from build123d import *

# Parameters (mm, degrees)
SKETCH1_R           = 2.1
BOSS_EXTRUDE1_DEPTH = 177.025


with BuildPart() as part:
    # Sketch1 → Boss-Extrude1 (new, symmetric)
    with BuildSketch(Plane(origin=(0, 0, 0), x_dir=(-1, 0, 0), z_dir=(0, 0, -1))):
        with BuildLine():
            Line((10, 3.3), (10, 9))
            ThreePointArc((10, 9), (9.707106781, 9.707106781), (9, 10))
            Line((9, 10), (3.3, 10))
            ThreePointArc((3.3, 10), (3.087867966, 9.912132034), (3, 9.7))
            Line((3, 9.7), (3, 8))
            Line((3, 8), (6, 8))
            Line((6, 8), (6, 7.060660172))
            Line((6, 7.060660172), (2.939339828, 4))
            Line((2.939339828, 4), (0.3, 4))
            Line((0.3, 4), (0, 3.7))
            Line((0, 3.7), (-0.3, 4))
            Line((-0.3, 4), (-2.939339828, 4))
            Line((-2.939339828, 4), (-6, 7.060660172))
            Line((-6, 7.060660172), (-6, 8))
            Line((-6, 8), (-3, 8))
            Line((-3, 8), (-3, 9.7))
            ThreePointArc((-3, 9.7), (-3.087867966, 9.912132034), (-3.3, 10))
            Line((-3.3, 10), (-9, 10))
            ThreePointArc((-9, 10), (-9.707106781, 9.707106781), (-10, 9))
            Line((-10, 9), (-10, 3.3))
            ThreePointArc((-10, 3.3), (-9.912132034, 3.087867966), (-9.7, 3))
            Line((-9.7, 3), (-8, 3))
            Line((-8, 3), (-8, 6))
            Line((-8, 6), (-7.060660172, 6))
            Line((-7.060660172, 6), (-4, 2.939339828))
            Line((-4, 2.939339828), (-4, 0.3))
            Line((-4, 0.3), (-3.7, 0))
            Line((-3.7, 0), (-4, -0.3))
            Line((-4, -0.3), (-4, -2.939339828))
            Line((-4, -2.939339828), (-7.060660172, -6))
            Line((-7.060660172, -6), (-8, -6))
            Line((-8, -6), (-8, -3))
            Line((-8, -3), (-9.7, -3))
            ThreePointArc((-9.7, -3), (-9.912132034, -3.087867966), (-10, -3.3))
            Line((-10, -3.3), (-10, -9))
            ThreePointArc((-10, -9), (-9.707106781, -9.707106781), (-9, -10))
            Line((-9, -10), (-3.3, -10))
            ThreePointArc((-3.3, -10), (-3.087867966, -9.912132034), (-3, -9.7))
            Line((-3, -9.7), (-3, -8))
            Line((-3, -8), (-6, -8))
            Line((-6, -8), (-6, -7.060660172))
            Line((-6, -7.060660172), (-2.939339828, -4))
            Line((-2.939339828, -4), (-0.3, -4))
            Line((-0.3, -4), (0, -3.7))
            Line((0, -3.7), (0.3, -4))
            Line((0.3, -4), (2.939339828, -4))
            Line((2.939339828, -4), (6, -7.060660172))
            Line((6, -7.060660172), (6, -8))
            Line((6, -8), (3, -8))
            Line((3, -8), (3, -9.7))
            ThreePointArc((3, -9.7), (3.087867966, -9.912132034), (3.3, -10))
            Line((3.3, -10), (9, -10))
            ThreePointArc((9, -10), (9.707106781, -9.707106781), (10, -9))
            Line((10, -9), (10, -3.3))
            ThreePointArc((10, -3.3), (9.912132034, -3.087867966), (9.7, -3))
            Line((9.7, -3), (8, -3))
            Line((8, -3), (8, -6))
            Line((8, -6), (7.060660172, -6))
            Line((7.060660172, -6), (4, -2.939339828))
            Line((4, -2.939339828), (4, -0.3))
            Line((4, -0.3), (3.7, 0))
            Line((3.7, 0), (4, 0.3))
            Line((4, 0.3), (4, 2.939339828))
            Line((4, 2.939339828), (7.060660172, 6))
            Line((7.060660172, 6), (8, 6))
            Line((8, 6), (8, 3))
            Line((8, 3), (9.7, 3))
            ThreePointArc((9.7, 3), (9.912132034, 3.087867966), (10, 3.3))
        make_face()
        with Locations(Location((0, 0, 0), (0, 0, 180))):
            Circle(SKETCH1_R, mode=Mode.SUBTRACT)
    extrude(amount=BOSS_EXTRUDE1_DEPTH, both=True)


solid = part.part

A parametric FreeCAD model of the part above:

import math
import FreeCAD as App
import Part
import Sketcher
Q = App.Units.Quantity

doc = App.newDocument("Part")
params = doc.addObject("Spreadsheet::Sheet", "Params")
for row, (alias, value) in enumerate([
    ("sketch1_radius", "1 mm"),
    ("sketch1_diameter", "4.2 mm"),
    ("sketch1_radius2", "0.3 mm"),
    ("sketch1_width", "3 mm"),
    ("sketch1_width2", "5.7 mm"),
    ("pad1_length", "354.05 mm"),
], start=1):
    params.set(f"A{row}", alias)
    params.set(f"B{row}", "=" + value)
    params.setAlias(f"B{row}", alias)

body = doc.addObject("PartDesign::Body", "Body")

# Sketch on XY plane
sketch1 = body.newObject("Sketcher::SketchObject", "Sketch")
sketch1.AttachmentSupport = (doc.getObject("XY_Plane"), [""])
sketch1.MapMode = "FlatFace"
sketch1.addGeometry([
    Part.LineSegment(App.Vector(-10, 3.3, 0), App.Vector(-10, 9, 0)),  # 0
    Part.ArcOfCircle(Part.Circle(App.Vector(-9, 9, 0), App.Vector(0, 0, 1), 1), math.radians(90), math.radians(180)),  # 1
    Part.LineSegment(App.Vector(-9, 10, 0), App.Vector(-3.3, 10, 0)),  # 2
    Part.ArcOfCircle(Part.Circle(App.Vector(-3.3, 9.7, 0), App.Vector(0, 0, 1), 0.3), math.radians(0), math.radians(90)),  # 3
    Part.LineSegment(App.Vector(-3, 9.7, 0), App.Vector(-3, 8, 0)),  # 4
    Part.LineSegment(App.Vector(-3, 8, 0), App.Vector(-6, 8, 0)),  # 5
    Part.LineSegment(App.Vector(-6, 8, 0), App.Vector(-6, 7.06, 0)),  # 6
    Part.LineSegment(App.Vector(-6, 7.06, 0), App.Vector(-2.94, 4, 0)),  # 7
    Part.LineSegment(App.Vector(-2.94, 4, 0), App.Vector(-0.3, 4, 0)),  # 8
    Part.LineSegment(App.Vector(-0.3, 4, 0), App.Vector(0, 3.7, 0)),  # 9
    Part.LineSegment(App.Vector(0, 3.7, 0), App.Vector(0.3, 4, 0)),  # 10
    Part.LineSegment(App.Vector(0.3, 4, 0), App.Vector(2.94, 4, 0)),  # 11
    Part.LineSegment(App.Vector(2.94, 4, 0), App.Vector(6, 7.06, 0)),  # 12
    Part.LineSegment(App.Vector(6, 7.06, 0), App.Vector(6, 8, 0)),  # 13
    Part.LineSegment(App.Vector(6, 8, 0), App.Vector(3, 8, 0)),  # 14
    Part.LineSegment(App.Vector(3, 8, 0), App.Vector(3, 9.7, 0)),  # 15
    Part.ArcOfCircle(Part.Circle(App.Vector(3.3, 9.7, 0), App.Vector(0, 0, 1), 0.3), math.radians(90), math.radians(180)),  # 16
    Part.LineSegment(App.Vector(3.3, 10, 0), App.Vector(9, 10, 0)),  # 17
    Part.ArcOfCircle(Part.Circle(App.Vector(9, 9, 0), App.Vector(0, 0, 1), 1), math.radians(0), math.radians(90)),  # 18
    Part.LineSegment(App.Vector(10, 9, 0), App.Vector(10, 3.3, 0)),  # 19
    Part.ArcOfCircle(Part.Circle(App.Vector(9.7, 3.3, 0), App.Vector(0, 0, 1), 0.3), math.radians(-90), math.radians(0)),  # 20
    Part.LineSegment(App.Vector(9.7, 3, 0), App.Vector(8, 3, 0)),  # 21
    Part.LineSegment(App.Vector(8, 3, 0), App.Vector(8, 6, 0)),  # 22
    Part.LineSegment(App.Vector(8, 6, 0), App.Vector(7.06, 6, 0)),  # 23
    Part.LineSegment(App.Vector(7.06, 6, 0), App.Vector(4, 2.94, 0)),  # 24
    Part.LineSegment(App.Vector(4, 2.94, 0), App.Vector(4, 0.3, 0)),  # 25
    Part.LineSegment(App.Vector(4, 0.3, 0), App.Vector(3.7, 0, 0)),  # 26
    Part.LineSegment(App.Vector(3.7, 0, 0), App.Vector(4, -0.3, 0)),  # 27
    Part.LineSegment(App.Vector(4, -0.3, 0), App.Vector(4, -2.94, 0)),  # 28
    Part.LineSegment(App.Vector(4, -2.94, 0), App.Vector(7.06, -6, 0)),  # 29
    Part.LineSegment(App.Vector(7.06, -6, 0), App.Vector(8, -6, 0)),  # 30
    Part.LineSegment(App.Vector(8, -6, 0), App.Vector(8, -3, 0)),  # 31
    Part.LineSegment(App.Vector(8, -3, 0), App.Vector(9.7, -3, 0)),  # 32
    Part.ArcOfCircle(Part.Circle(App.Vector(9.7, -3.3, 0), App.Vector(0, 0, 1), 0.3), math.radians(0), math.radians(90)),  # 33
    Part.LineSegment(App.Vector(10, -3.3, 0), App.Vector(10, -9, 0)),  # 34
    Part.ArcOfCircle(Part.Circle(App.Vector(9, -9, 0), App.Vector(0, 0, 1), 1), math.radians(-90), math.radians(0)),  # 35
    Part.LineSegment(App.Vector(9, -10, 0), App.Vector(3.3, -10, 0)),  # 36
    Part.ArcOfCircle(Part.Circle(App.Vector(3.3, -9.7, 0), App.Vector(0, 0, 1), 0.3), math.radians(-180), math.radians(-90)),  # 37
    Part.LineSegment(App.Vector(3, -9.7, 0), App.Vector(3, -8, 0)),  # 38
    Part.LineSegment(App.Vector(3, -8, 0), App.Vector(6, -8, 0)),  # 39
    Part.LineSegment(App.Vector(6, -8, 0), App.Vector(6, -7.06, 0)),  # 40
    Part.LineSegment(App.Vector(6, -7.06, 0), App.Vector(2.94, -4, 0)),  # 41
    Part.LineSegment(App.Vector(2.94, -4, 0), App.Vector(0.3, -4, 0)),  # 42
    Part.LineSegment(App.Vector(0.3, -4, 0), App.Vector(0, -3.7, 0)),  # 43
    Part.LineSegment(App.Vector(0, -3.7, 0), App.Vector(-0.3, -4, 0)),  # 44
    Part.LineSegment(App.Vector(-0.3, -4, 0), App.Vector(-2.94, -4, 0)),  # 45
    Part.LineSegment(App.Vector(-2.94, -4, 0), App.Vector(-6, -7.06, 0)),  # 46
    Part.LineSegment(App.Vector(-6, -7.06, 0), App.Vector(-6, -8, 0)),  # 47
    Part.LineSegment(App.Vector(-6, -8, 0), App.Vector(-3, -8, 0)),  # 48
    Part.LineSegment(App.Vector(-3, -8, 0), App.Vector(-3, -9.7, 0)),  # 49
    Part.ArcOfCircle(Part.Circle(App.Vector(-3.3, -9.7, 0), App.Vector(0, 0, 1), 0.3), math.radians(-90), math.radians(0)),  # 50
    Part.LineSegment(App.Vector(-3.3, -10, 0), App.Vector(-9, -10, 0)),  # 51
    Part.ArcOfCircle(Part.Circle(App.Vector(-9, -9, 0), App.Vector(0, 0, 1), 1), math.radians(-180), math.radians(-90)),  # 52
    Part.LineSegment(App.Vector(-10, -9, 0), App.Vector(-10, -3.3, 0)),  # 53
    Part.ArcOfCircle(Part.Circle(App.Vector(-9.7, -3.3, 0), App.Vector(0, 0, 1), 0.3), math.radians(90), math.radians(180)),  # 54
    Part.LineSegment(App.Vector(-9.7, -3, 0), App.Vector(-8, -3, 0)),  # 55
    Part.LineSegment(App.Vector(-8, -3, 0), App.Vector(-8, -6, 0)),  # 56
    Part.LineSegment(App.Vector(-8, -6, 0), App.Vector(-7.06, -6, 0)),  # 57
    Part.LineSegment(App.Vector(-7.06, -6, 0), App.Vector(-4, -2.94, 0)),  # 58
    Part.LineSegment(App.Vector(-4, -2.94, 0), App.Vector(-4, -0.3, 0)),  # 59
    Part.LineSegment(App.Vector(-4, -0.3, 0), App.Vector(-3.7, 0, 0)),  # 60
    Part.LineSegment(App.Vector(-3.7, 0, 0), App.Vector(-4, 0.3, 0)),  # 61
    Part.LineSegment(App.Vector(-4, 0.3, 0), App.Vector(-4, 2.94, 0)),  # 62
    Part.LineSegment(App.Vector(-4, 2.94, 0), App.Vector(-7.06, 6, 0)),  # 63
    Part.LineSegment(App.Vector(-7.06, 6, 0), App.Vector(-8, 6, 0)),  # 64
    Part.LineSegment(App.Vector(-8, 6, 0), App.Vector(-8, 3, 0)),  # 65
    Part.LineSegment(App.Vector(-8, 3, 0), App.Vector(-9.7, 3, 0)),  # 66
    Part.ArcOfCircle(Part.Circle(App.Vector(-9.7, 3.3, 0), App.Vector(0, 0, 1), 0.3), math.radians(-180), math.radians(-90)),  # 67
    Part.Circle(App.Vector(0, 0, 0), App.Vector(0, 0, 1), 2.1),  # 68
], False)
sketch1.addConstraint([
    Sketcher.Constraint("Tangent", 0, 2, 1, 2),
    Sketcher.Constraint("Tangent", 1, 1, 2, 1),
    Sketcher.Constraint("Tangent", 2, 2, 3, 2),
    Sketcher.Constraint("Tangent", 3, 1, 4, 1),
    Sketcher.Constraint("Coincident", 4, 2, 5, 1),
    Sketcher.Constraint("Coincident", 5, 2, 6, 1),
    Sketcher.Constraint("Coincident", 6, 2, 7, 1),
    Sketcher.Constraint("Coincident", 7, 2, 8, 1),
    Sketcher.Constraint("Coincident", 8, 2, 9, 1),
    Sketcher.Constraint("Coincident", 9, 2, 10, 1),
    Sketcher.Constraint("Coincident", 10, 2, 11, 1),
    Sketcher.Constraint("Coincident", 11, 2, 12, 1),
    Sketcher.Constraint("Coincident", 12, 2, 13, 1),
    Sketcher.Constraint("Coincident", 13, 2, 14, 1),
    Sketcher.Constraint("Coincident", 14, 2, 15, 1),
    Sketcher.Constraint("Tangent", 15, 2, 16, 2),
    Sketcher.Constraint("Tangent", 16, 1, 17, 1),
    Sketcher.Constraint("Tangent", 17, 2, 18, 2),
    Sketcher.Constraint("Tangent", 18, 1, 19, 1),
    Sketcher.Constraint("Tangent", 19, 2, 20, 2),
    Sketcher.Constraint("Tangent", 20, 1, 21, 1),
    Sketcher.Constraint("Coincident", 21, 2, 22, 1),
    Sketcher.Constraint("Coincident", 22, 2, 23, 1),
    Sketcher.Constraint("Coincident", 23, 2, 24, 1),
    Sketcher.Constraint("Coincident", 24, 2, 25, 1),
    Sketcher.Constraint("Coincident", 25, 2, 26, 1),
    Sketcher.Constraint("Coincident", 26, 2, 27, 1),
    Sketcher.Constraint("Coincident", 27, 2, 28, 1),
    Sketcher.Constraint("Coincident", 28, 2, 29, 1),
    Sketcher.Constraint("Coincident", 29, 2, 30, 1),
    Sketcher.Constraint("Coincident", 30, 2, 31, 1),
    Sketcher.Constraint("Coincident", 31, 2, 32, 1),
    Sketcher.Constraint("Tangent", 32, 2, 33, 2),
    Sketcher.Constraint("Tangent", 33, 1, 34, 1),
    Sketcher.Constraint("Tangent", 34, 2, 35, 2),
    Sketcher.Constraint("Tangent", 35, 1, 36, 1),
    Sketcher.Constraint("Tangent", 36, 2, 37, 2),
    Sketcher.Constraint("Tangent", 37, 1, 38, 1),
    Sketcher.Constraint("Coincident", 38, 2, 39, 1),
    Sketcher.Constraint("Coincident", 39, 2, 40, 1),
    Sketcher.Constraint("Coincident", 40, 2, 41, 1),
    Sketcher.Constraint("Coincident", 41, 2, 42, 1),
    Sketcher.Constraint("Coincident", 42, 2, 43, 1),
    Sketcher.Constraint("Coincident", 43, 2, 44, 1),
    Sketcher.Constraint("Coincident", 44, 2, 45, 1),
    Sketcher.Constraint("Coincident", 45, 2, 46, 1),
    Sketcher.Constraint("Coincident", 46, 2, 47, 1),
    Sketcher.Constraint("Coincident", 47, 2, 48, 1),
    Sketcher.Constraint("Coincident", 48, 2, 49, 1),
    Sketcher.Constraint("Tangent", 49, 2, 50, 2),
    Sketcher.Constraint("Tangent", 50, 1, 51, 1),
    Sketcher.Constraint("Tangent", 51, 2, 52, 2),
    Sketcher.Constraint("Tangent", 52, 1, 53, 1),
    Sketcher.Constraint("Tangent", 53, 2, 54, 2),
    Sketcher.Constraint("Tangent", 54, 1, 55, 1),
    Sketcher.Constraint("Coincident", 55, 2, 56, 1),
    Sketcher.Constraint("Coincident", 56, 2, 57, 1),
    Sketcher.Constraint("Coincident", 57, 2, 58, 1),
    Sketcher.Constraint("Coincident", 58, 2, 59, 1),
    Sketcher.Constraint("Coincident", 59, 2, 60, 1),
    Sketcher.Constraint("Coincident", 60, 2, 61, 1),
    Sketcher.Constraint("Coincident", 61, 2, 62, 1),
    Sketcher.Constraint("Coincident", 62, 2, 63, 1),
    Sketcher.Constraint("Coincident", 63, 2, 64, 1),
    Sketcher.Constraint("Coincident", 64, 2, 65, 1),
    Sketcher.Constraint("Coincident", 65, 2, 66, 1),
    Sketcher.Constraint("Tangent", 66, 2, 67, 2),
    Sketcher.Constraint("Tangent", 67, 1, 0, 1),
    Sketcher.Constraint("Vertical", 0),
    Sketcher.Constraint("Horizontal", 2),
    Sketcher.Constraint("Vertical", 4),
    Sketcher.Constraint("Horizontal", 5),
    Sketcher.Constraint("Vertical", 6),
    Sketcher.Constraint("Horizontal", 8),
    Sketcher.Constraint("Horizontal", 11),
    Sketcher.Constraint("Vertical", 13),
    Sketcher.Constraint("Horizontal", 14),
    Sketcher.Constraint("Vertical", 15),
    Sketcher.Constraint("Horizontal", 17),
    Sketcher.Constraint("Vertical", 19),
    Sketcher.Constraint("Horizontal", 21),
    Sketcher.Constraint("Vertical", 22),
    Sketcher.Constraint("Horizontal", 23),
    Sketcher.Constraint("Vertical", 25),
    Sketcher.Constraint("Vertical", 28),
    Sketcher.Constraint("Horizontal", 30),
    Sketcher.Constraint("Vertical", 31),
    Sketcher.Constraint("Horizontal", 32),
    Sketcher.Constraint("Vertical", 34),
    Sketcher.Constraint("Horizontal", 36),
    Sketcher.Constraint("Vertical", 38),
    Sketcher.Constraint("Horizontal", 39),
    Sketcher.Constraint("Vertical", 40),
    Sketcher.Constraint("Horizontal", 42),
    Sketcher.Constraint("Horizontal", 45),
    Sketcher.Constraint("Vertical", 47),
    Sketcher.Constraint("Horizontal", 48),
    Sketcher.Constraint("Vertical", 49),
    Sketcher.Constraint("Horizontal", 51),
    Sketcher.Constraint("Vertical", 53),
    Sketcher.Constraint("Horizontal", 55),
    Sketcher.Constraint("Vertical", 56),
    Sketcher.Constraint("Horizontal", 57),
    Sketcher.Constraint("Vertical", 59),
    Sketcher.Constraint("Vertical", 62),
    Sketcher.Constraint("Horizontal", 64),
    Sketcher.Constraint("Vertical", 65),
    Sketcher.Constraint("Horizontal", 66),
    Sketcher.Constraint("Coincident", 68, 3, -1, 1),
    Sketcher.Constraint("Equal", 3, 16),
    Sketcher.Constraint("Equal", 1, 18),
    Sketcher.Constraint("Equal", 16, 20),
    Sketcher.Constraint("Equal", 20, 33),
    Sketcher.Constraint("Equal", 18, 35),
    Sketcher.Constraint("Equal", 33, 37),
    Sketcher.Constraint("Equal", 37, 50),
    Sketcher.Constraint("Equal", 35, 52),
    Sketcher.Constraint("Equal", 50, 54),
    Sketcher.Constraint("Equal", 54, 67),
    Sketcher.Constraint("Symmetric", 1, 3, 35, 3, -1, 1),
    Sketcher.Constraint("Symmetric", 16, 3, 50, 3, -1, 1),
    Sketcher.Constraint("Symmetric", 20, 3, 54, 3, -1, 1),
    Sketcher.Constraint("Symmetric", 4, 2, 38, 2, -1, 1),
    Sketcher.Constraint("Symmetric", 6, 2, 40, 2, -1, 1),
    Sketcher.Constraint("Symmetric", 7, 2, 41, 2, -1, 1),
    Sketcher.Constraint("Symmetric", 9, 2, 43, 2, -1, 1),
    Sketcher.Constraint("Symmetric", 10, 2, 44, 2, -1, 1),
    Sketcher.Constraint("Symmetric", 12, 2, 46, 2, -1, 1),
    Sketcher.Constraint("Symmetric", 22, 2, 56, 2, -1, 1),
    Sketcher.Constraint("Symmetric", 24, 2, 58, 2, -1, 1),
    Sketcher.Constraint("Symmetric", 26, 2, 60, 2, -1, 1),
    Sketcher.Constraint("Symmetric", 27, 2, 61, 2, -1, 1),
    Sketcher.Constraint("Symmetric", 29, 2, 63, 2, -1, 1),
    Sketcher.Constraint("Symmetric", 31, 2, 65, 2, -1, 1),
    Sketcher.Constraint("Symmetric", 3, 3, 16, 3, -2),
    Sketcher.Constraint("Symmetric", 33, 3, 54, 3, -2),
    Sketcher.Constraint("Symmetric", 8, 2, 10, 2, -2),
    Sketcher.Constraint("Symmetric", 6, 2, 12, 2, -2),
    Sketcher.Constraint("Symmetric", 30, 2, 56, 2, -2),
    Sketcher.Constraint("Symmetric", 28, 2, 58, 2, -2),
    Sketcher.Constraint("PointOnObject", 9, 2, -2),
    Sketcher.Constraint("PointOnObject", 26, 2, -1),
    Sketcher.Constraint("Parallel", 7, 9),
    Sketcher.Constraint("Perpendicular", 9, 10),
    Sketcher.Constraint("Parallel", 10, 12),
    Sketcher.Constraint("Parallel", 12, 24),
    Sketcher.Constraint("Parallel", 24, 26),
    Sketcher.Constraint("Perpendicular", 26, 27),
    Sketcher.Constraint("Parallel", 27, 29),
    Sketcher.Constraint("Parallel", 41, 43),
    Sketcher.Constraint("Parallel", 44, 46),
    Sketcher.Constraint("Parallel", 46, 58),
    Sketcher.Constraint("Parallel", 58, 60),
    Sketcher.Constraint("Parallel", 61, 63),
    Sketcher.Constraint("Horizontal", 5, 2, 13, 2),
    Sketcher.Constraint("Horizontal", 39, 2, 47, 2),
    Sketcher.Constraint("Equal", 51, 0),
    Sketcher.Constraint("Equal", 66, 4),
    Sketcher.Constraint("Equal", 64, 6),
    Sketcher.Constraint("Equal", 48, 22),
    Sketcher.Constraint("Equal", 45, 25),
    Sketcher.Constraint("Equal", 12, 24),
    Sketcher.Constraint("Equal", 10, 26),
    Sketcher.Constraint("Radius", 1, Q("1 mm")),
    Sketcher.Constraint("Diameter", 68, Q("4.2 mm")),
    Sketcher.Constraint("Radius", 3, Q("0.3 mm")),
    Sketcher.Constraint("DistanceX", 5, 2, 5, 1, Q("3 mm")),
    Sketcher.Constraint("DistanceX", 2, 1, 2, 2, Q("5.7 mm")),
    Sketcher.Constraint("DistanceX", 21, 2, 21, 1, Q("1.7 mm")),
    Sketcher.Constraint("DistanceX", 1, 3, -1, 1, Q("9 mm")),
    Sketcher.Constraint("DistanceY", -1, 1, 7, 2, Q("4 mm")),
    Sketcher.Constraint("DistanceX", 8, 2, -1, 1, Q("0.3 mm")),
    Sketcher.Constraint("DistanceX", 8, 1, 8, 2, Q("2.63934 mm")),
])
sketch1.setExpression("Constraints[163]", "Params.sketch1_radius")
sketch1.setExpression("Constraints[164]", "Params.sketch1_diameter")
sketch1.setExpression("Constraints[165]", "Params.sketch1_radius2")
sketch1.setExpression("Constraints[166]", "Params.sketch1_width")
sketch1.setExpression("Constraints[167]", "Params.sketch1_width2")
pad1 = body.newObject("PartDesign::Pad", "Pad")
pad1.Profile = sketch1
pad1.setExpression("Length", "Params.pad1_length")
pad1.Midplane = True

doc.recompute()
